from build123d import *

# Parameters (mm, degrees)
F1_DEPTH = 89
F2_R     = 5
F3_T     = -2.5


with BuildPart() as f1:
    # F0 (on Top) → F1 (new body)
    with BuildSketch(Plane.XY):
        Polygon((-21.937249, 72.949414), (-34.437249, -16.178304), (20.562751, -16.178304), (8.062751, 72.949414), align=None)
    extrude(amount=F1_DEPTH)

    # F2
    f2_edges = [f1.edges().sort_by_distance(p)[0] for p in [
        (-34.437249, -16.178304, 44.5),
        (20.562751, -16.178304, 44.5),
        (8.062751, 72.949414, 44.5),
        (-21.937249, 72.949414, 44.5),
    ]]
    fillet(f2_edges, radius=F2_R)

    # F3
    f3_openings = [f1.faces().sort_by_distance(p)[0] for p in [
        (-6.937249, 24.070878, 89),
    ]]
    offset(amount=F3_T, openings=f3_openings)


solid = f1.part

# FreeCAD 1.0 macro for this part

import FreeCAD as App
import Part
import Sketcher
from FreeCAD import Vector
Q = App.Units.Quantity


def edges_at(feature, points):
    """Names of the edges that pass closest to the given points."""
    edges = feature.Shape.Edges
    near = lambda p: min(range(len(edges)), key=lambda i: edges[i].distToShape(Part.Vertex(*p))[0])
    return sorted({f"Edge{near(p) + 1}" for p in points})


def faces_at(feature, points):
    """Names of the faces that lie closest to the given points."""
    faces = feature.Shape.Faces
    near = lambda p: min(range(len(faces)), key=lambda i: faces[i].distToShape(Part.Vertex(*p))[0])
    return sorted({f"Face{near(p) + 1}" for p in points})


def add_polygon(sketch, points):
    """Adds a closed chain of lines whose ends are joined by coincident constraints."""
    first, n = sketch.GeometryCount, len(points)
    for a, b in zip(points, points[1:] + points[:1]):
        sketch.addGeometry(Part.LineSegment(App.Vector(*a, 0), App.Vector(*b, 0)), False)
    for i in range(n):
        sketch.addConstraint(Sketcher.Constraint("Coincident", first + i, 2, first + (i + 1) % n, 1))

doc = App.newDocument("Part")
body = doc.addObject("PartDesign::Body", "Body")

# Sketch on XY plane
sketch1 = doc.addObject("Sketcher::SketchObject", "Sketch")
body.addObject(sketch1)
sketch1.AttachmentSupport = (doc.XY_Plane, [""])
sketch1.MapMode = "FlatFace"
add_polygon(sketch1, [(-22, 73), (-34, -16), (21, -16), (8, 73)])  # lines 0-3
sketch1.addConstraint(Sketcher.Constraint("Horizontal", 1))
sketch1.addConstraint(Sketcher.Constraint("Horizontal", 3))
sketch1.addConstraint(Sketcher.Constraint("Equal", 0, 2))
sketch1.addConstraint(Sketcher.Constraint("DistanceX", 1, 1, 1, 2, Q("55 mm")))
sketch1.addConstraint(Sketcher.Constraint("DistanceX", 3, 2, 3, 1, Q("30 mm")))
sketch1.addConstraint(Sketcher.Constraint("Distance", 0, Q("90.000001 mm")))
sketch1.addConstraint(Sketcher.Constraint("DistanceX", 0, 2, -1, 1, Q("34.437249 mm")))
sketch1.addConstraint(Sketcher.Constraint("DistanceY", 0, 2, -1, 1, Q("16.178304 mm")))
pad1 = doc.addObject("PartDesign::Pad", "Pad")
body.addObject(pad1)
pad1.Profile = sketch1
pad1.Length = 89
doc.recompute()

fillet = doc.addObject("PartDesign::Fillet", "Fillet")
body.addObject(fillet)
fillet.Base = (pad1, edges_at(pad1, [
    (-34.437, -16.178, 44.5),
    (20.563, -16.178, 44.5),
    (8.063, 72.949, 44.5),
    (-21.937, 72.949, 44.5),
]))
fillet.Radius = 5
doc.recompute()

thickness = doc.addObject("PartDesign::Thickness", "Thickness")
body.addObject(thickness)
thickness.Base = (fillet, faces_at(fillet, [(-6.937, 28.386, 89)]))
thickness.Value = 2.5
thickness.Reversed = True
thickness.Join = "Arc"

doc.recompute()
